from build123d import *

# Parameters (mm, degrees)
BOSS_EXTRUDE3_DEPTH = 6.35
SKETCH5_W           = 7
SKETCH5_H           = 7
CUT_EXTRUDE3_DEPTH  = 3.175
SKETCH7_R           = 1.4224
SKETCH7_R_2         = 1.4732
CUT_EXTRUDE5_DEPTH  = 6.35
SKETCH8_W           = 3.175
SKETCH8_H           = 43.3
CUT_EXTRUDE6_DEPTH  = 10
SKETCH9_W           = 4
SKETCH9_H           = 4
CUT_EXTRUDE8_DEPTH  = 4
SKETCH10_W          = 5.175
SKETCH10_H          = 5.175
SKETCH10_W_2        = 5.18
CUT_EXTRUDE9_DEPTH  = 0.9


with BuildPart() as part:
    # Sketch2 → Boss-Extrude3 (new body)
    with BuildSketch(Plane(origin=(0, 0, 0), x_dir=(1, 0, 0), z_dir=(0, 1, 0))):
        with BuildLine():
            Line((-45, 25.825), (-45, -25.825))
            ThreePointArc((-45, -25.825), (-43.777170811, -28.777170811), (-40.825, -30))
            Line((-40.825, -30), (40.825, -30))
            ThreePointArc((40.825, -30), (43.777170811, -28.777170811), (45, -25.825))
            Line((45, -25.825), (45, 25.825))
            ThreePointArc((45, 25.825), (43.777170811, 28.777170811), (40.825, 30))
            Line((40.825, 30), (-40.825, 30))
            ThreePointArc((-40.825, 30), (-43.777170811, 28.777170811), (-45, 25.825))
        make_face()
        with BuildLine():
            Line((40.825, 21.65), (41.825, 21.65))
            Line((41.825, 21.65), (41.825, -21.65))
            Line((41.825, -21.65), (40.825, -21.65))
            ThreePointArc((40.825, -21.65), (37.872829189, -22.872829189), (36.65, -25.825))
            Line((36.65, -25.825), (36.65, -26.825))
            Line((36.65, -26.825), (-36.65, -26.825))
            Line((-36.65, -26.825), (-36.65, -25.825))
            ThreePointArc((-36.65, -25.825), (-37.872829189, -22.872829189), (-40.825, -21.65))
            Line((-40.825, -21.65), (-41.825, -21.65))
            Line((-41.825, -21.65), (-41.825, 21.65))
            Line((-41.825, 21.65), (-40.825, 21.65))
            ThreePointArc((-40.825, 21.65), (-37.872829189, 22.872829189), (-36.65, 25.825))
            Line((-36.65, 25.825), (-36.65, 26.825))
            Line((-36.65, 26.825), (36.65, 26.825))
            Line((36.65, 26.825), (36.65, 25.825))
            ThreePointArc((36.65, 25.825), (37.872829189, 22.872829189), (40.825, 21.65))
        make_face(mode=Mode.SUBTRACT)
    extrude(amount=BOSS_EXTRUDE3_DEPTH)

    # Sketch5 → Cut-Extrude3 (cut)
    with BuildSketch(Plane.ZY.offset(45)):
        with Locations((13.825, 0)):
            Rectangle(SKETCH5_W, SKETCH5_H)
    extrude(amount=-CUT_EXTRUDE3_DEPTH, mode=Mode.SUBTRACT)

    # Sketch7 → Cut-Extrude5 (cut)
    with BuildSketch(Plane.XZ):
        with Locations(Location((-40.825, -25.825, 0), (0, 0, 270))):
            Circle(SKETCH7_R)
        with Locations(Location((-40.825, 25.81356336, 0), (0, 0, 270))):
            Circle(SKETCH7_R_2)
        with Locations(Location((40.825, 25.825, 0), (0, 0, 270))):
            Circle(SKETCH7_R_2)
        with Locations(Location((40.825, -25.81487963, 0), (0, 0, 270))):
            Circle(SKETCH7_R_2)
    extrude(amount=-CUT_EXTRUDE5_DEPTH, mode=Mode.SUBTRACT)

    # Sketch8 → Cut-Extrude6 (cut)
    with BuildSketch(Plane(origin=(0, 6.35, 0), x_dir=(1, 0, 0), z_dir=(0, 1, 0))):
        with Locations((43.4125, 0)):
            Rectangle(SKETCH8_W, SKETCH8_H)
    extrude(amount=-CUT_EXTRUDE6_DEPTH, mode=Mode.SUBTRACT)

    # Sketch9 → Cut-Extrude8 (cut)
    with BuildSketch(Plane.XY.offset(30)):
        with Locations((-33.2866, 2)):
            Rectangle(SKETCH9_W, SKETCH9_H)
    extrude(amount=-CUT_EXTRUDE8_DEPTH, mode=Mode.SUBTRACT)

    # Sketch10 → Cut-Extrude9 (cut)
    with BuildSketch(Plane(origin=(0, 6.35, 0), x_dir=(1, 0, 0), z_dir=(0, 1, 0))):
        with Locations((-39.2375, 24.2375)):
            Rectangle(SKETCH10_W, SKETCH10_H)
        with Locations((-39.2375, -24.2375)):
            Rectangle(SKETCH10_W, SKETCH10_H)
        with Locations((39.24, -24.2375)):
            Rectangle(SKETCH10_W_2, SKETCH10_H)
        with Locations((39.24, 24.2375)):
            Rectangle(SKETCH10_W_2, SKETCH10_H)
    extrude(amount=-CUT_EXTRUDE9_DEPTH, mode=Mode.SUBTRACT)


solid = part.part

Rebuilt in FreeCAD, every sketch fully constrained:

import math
import FreeCAD as App
import Part
import Sketcher
from FreeCAD import Vector

doc = App.newDocument("Part")
params = doc.addObject("Spreadsheet::Sheet", "Params")
for row, (alias, value) in enumerate([
    ("sketch1_width", "1 mm"),
    ("sketch1_width2", "73.3 mm"),
    ("sketch1_height", "43.3 mm"),
    ("pad1_length", "6.35 mm"),
    ("sketch2_width", "7 mm"),
    ("pocket1_length", "3.175 mm"),
    ("pocket2_length", "6.35 mm"),
    ("sketch4_height", "43.3 mm"),
    ("pocket3_length", "10 mm"),
    ("sketch5_width", "4 mm"),
    ("pocket4_length", "4 mm"),
    ("sketch6_width", "5.18 mm"),
    ("pocket5_length", "0.9 mm"),
], start=1):
    params.set(f"A{row}", alias)
    params.set(f"B{row}", "=" + value)
    params.setAlias(f"B{row}", alias)

body = doc.addObject("PartDesign::Body", "Body")

# Sketch on XZ plane
sketch1 = doc.addObject("Sketcher::SketchObject", "Sketch")
body.addObject(sketch1)
sketch1.AttachmentSupport = (doc.XZ_Plane, [""])
sketch1.MapMode = "FlatFace"
sketch1.addGeometry(Part.LineSegment(Vector(-45, -25.8, 0), Vector(-45, 25.8, 0)), False)
sketch1.addGeometry(Part.ArcOfCircle(Part.Circle(Vector(-40.8, 25.8, 0), Vector(0, 0, 1), 4.2), math.radians(90), math.radians(180)), False)
sketch1.addGeometry(Part.LineSegment(Vector(-40.8, 30, 0), Vector(40.8, 30, 0)), False)
sketch1.addGeometry(Part.ArcOfCircle(Part.Circle(Vector(40.8, 25.8, 0), Vector(0, 0, 1), 4.2), math.radians(0), math.radians(90)), False)
sketch1.addGeometry(Part.LineSegment(Vector(45, 25.8, 0), Vector(45, -25.8, 0)), False)
sketch1.addGeometry(Part.ArcOfCircle(Part.Circle(Vector(40.8, -25.8, 0), Vector(0, 0, 1), 4.2), math.radians(-90), math.radians(0)), False)
sketch1.addGeometry(Part.LineSegment(Vector(40.8, -30, 0), Vector(-40.8, -30, 0)), False)
sketch1.addGeometry(Part.ArcOfCircle(Part.Circle(Vector(-40.8, -25.8, 0), Vector(0, 0, 1), 4.2), math.radians(-180), math.radians(-90)), False)
sketch1.addGeometry(Part.ArcOfCircle(Part.Circle(Vector(40.8, -25.8, 0), Vector(0, 0, 1), 4.2), math.radians(90), math.radians(180)), False)
sketch1.addGeometry(Part.LineSegment(Vector(40.8, -21.6, 0), Vector(41.8, -21.6, 0)), False)
sketch1.addGeometry(Part.LineSegment(Vector(41.8, -21.6, 0), Vector(41.8, 21.6, 0)), False)
sketch1.addGeometry(Part.LineSegment(Vector(41.8, 21.6, 0), Vector(40.8, 21.6, 0)), False)
sketch1.addGeometry(Part.ArcOfCircle(Part.Circle(Vector(40.8, 25.8, 0), Vector(0, 0, 1), 4.2), math.radians(-180), math.radians(-90)), False)
sketch1.addGeometry(Part.LineSegment(Vector(36.6, 25.8, 0), Vector(36.6, 26.8, 0)), False)
sketch1.addGeometry(Part.LineSegment(Vector(36.6, 26.8, 0), Vector(-36.6, 26.8, 0)), False)
sketch1.addGeometry(Part.LineSegment(Vector(-36.6, 26.8, 0), Vector(-36.6, 25.8, 0)), False)
sketch1.addGeometry(Part.ArcOfCircle(Part.Circle(Vector(-40.8, 25.8, 0), Vector(0, 0, 1), 4.2), math.radians(-90), math.radians(0)), False)
sketch1.addGeometry(Part.LineSegment(Vector(-40.8, 21.6, 0), Vector(-41.8, 21.6, 0)), False)
sketch1.addGeometry(Part.LineSegment(Vector(-41.8, 21.6, 0), Vector(-41.8, -21.6, 0)), False)
sketch1.addGeometry(Part.LineSegment(Vector(-41.8, -21.6, 0), Vector(-40.8, -21.6, 0)), False)
sketch1.addGeometry(Part.ArcOfCircle(Part.Circle(Vector(-40.8, -25.8, 0), Vector(0, 0, 1), 4.2), math.radians(0), math.radians(90)), False)
sketch1.addGeometry(Part.LineSegment(Vector(-36.6, -25.8, 0), Vector(-36.6, -26.8, 0)), False)
sketch1.addGeometry(Part.LineSegment(Vector(-36.6, -26.8, 0), Vector(36.6, -26.8, 0)), False)
sketch1.addGeometry(Part.LineSegment(Vector(36.6, -26.8, 0), Vector(36.6, -25.8, 0)), False)
sketch1.addConstraint(Sketcher.Constraint("Tangent", 0, 2, 1, 2))
sketch1.addConstraint(Sketcher.Constraint("Tangent", 1, 1, 2, 1))
sketch1.addConstraint(Sketcher.Constraint("Tangent", 2, 2, 3, 2))
sketch1.addConstraint(Sketcher.Constraint("Tangent", 3, 1, 4, 1))
sketch1.addConstraint(Sketcher.Constraint("Tangent", 4, 2, 5, 2))
sketch1.addConstraint(Sketcher.Constraint("Tangent", 5, 1, 6, 1))
sketch1.addConstraint(Sketcher.Constraint("Tangent", 6, 2, 7, 2))
sketch1.addConstraint(Sketcher.Constraint("Tangent", 7, 1, 0, 1))
sketch1.addConstraint(Sketcher.Constraint("Tangent", 8, 1, 9, 1))
sketch1.addConstraint(Sketcher.Constraint("Coincident", 9, 2, 10, 1))
sketch1.addConstraint(Sketcher.Constraint("Coincident", 10, 2, 11, 1))
sketch1.addConstraint(Sketcher.Constraint("Tangent", 11, 2, 12, 2))
sketch1.addConstraint(Sketcher.Constraint("Tangent", 12, 1, 13, 1))
sketch1.addConstraint(Sketcher.Constraint("Coincident", 13, 2, 14, 1))
sketch1.addConstraint(Sketcher.Constraint("Coincident", 14, 2, 15, 1))
sketch1.addConstraint(Sketcher.Constraint("Tangent", 15, 2, 16, 2))
sketch1.addConstraint(Sketcher.Constraint("Tangent", 16, 1, 17, 1))
sketch1.addConstraint(Sketcher.Constraint("Coincident", 17, 2, 18, 1))
sketch1.addConstraint(Sketcher.Constraint("Coincident", 18, 2, 19, 1))
sketch1.addConstraint(Sketcher.Constraint("Tangent", 19, 2, 20, 2))
sketch1.addConstraint(Sketcher.Constraint("Tangent", 20, 1, 21, 1))
sketch1.addConstraint(Sketcher.Constraint("Coincident", 21, 2, 22, 1))
sketch1.addConstraint(Sketcher.Constraint("Coincident", 22, 2, 23, 1))
sketch1.addConstraint(Sketcher.Constraint("Tangent", 23, 2, 8, 2))
sketch1.addConstraint(Sketcher.Constraint("Vertical", 0))
sketch1.addConstraint(Sketcher.Constraint("Horizontal", 2))
sketch1.addConstraint(Sketcher.Constraint("Vertical", 4))
sketch1.addConstraint(Sketcher.Constraint("Horizontal", 6))
sketch1.addConstraint(Sketcher.Constraint("Horizontal", 9))
sketch1.addConstraint(Sketcher.Constraint("Vertical", 10))
sketch1.addConstraint(Sketcher.Constraint("Horizontal", 11))
sketch1.addConstraint(Sketcher.Constraint("Vertical", 13))
sketch1.addConstraint(Sketcher.Constraint("Horizontal", 14))
sketch1.addConstraint(Sketcher.Constraint("Vertical", 15))
sketch1.addConstraint(Sketcher.Constraint("Horizontal", 17))
sketch1.addConstraint(Sketcher.Constraint("Vertical", 18))
sketch1.addConstraint(Sketcher.Constraint("Horizontal", 19))
sketch1.addConstraint(Sketcher.Constraint("Vertical", 21))
sketch1.addConstraint(Sketcher.Constraint("Horizontal", 22))
sketch1.addConstraint(Sketcher.Constraint("Vertical", 23))
sketch1.addConstraint(Sketcher.Constraint("Coincident", 8, 3, 5, 3))
sketch1.addConstraint(Sketcher.Constraint("Coincident", 12, 3, 3, 3))
sketch1.addConstraint(Sketcher.Constraint("Coincident", 16, 3, 1, 3))
sketch1.addConstraint(Sketcher.Constraint("Coincident", 20, 3, 7, 3))
sketch1.addConstraint(Sketcher.Constraint("Equal", 1, 3))
sketch1.addConstraint(Sketcher.Constraint("Equal", 3, 5))
sketch1.addConstraint(Sketcher.Constraint("Equal", 5, 7))
sketch1.addConstraint(Sketcher.Constraint("Equal", 7, 8))
sketch1.addConstraint(Sketcher.Constraint("Equal", 8, 12))
sketch1.addConstraint(Sketcher.Constraint("Equal", 12, 16))
sketch1.addConstraint(Sketcher.Constraint("Equal", 16, 20))
sketch1.addConstraint(Sketcher.Constraint("Symmetric", 1, 3, 5, 3, -1, 1))
sketch1.addConstraint(Sketcher.Constraint("Equal", 11, 17))
sketch1.addConstraint(Sketcher.Constraint("Equal", 19, 13))
sketch1.addConstraint(Sketcher.Constraint("Equal", 15, 21))
sketch1.addConstraint(Sketcher.Constraint("DistanceX", 9, 1, 9, 2, 1.0))
sketch1.addConstraint(Sketcher.Constraint("DistanceX", 14, 2, 14, 1, 73.3))
sketch1.addConstraint(Sketcher.Constraint("DistanceY", 10, 1, 10, 2, 43.3))
sketch1.addConstraint(Sketcher.Constraint("DistanceX", 0, 2, -1, 1, 45.0))
sketch1.setExpression("Constraints[55]", "Params.sketch1_width")
sketch1.setExpression("Constraints[56]", "Params.sketch1_width2")
sketch1.setExpression("Constraints[57]", "Params.sketch1_height")
pad1 = doc.addObject("PartDesign::Pad", "Pad")
body.addObject(pad1)
pad1.Profile = sketch1
pad1.setExpression("Length", "Params.pad1_length")
pad1.Reversed = True

# Sketch on YZ plane
sketch2 = doc.addObject("Sketcher::SketchObject", "Sketch001")
body.addObject(sketch2)
sketch2.AttachmentSupport = (doc.YZ_Plane, [""])
sketch2.MapMode = "FlatFace"
sketch2.AttachmentOffset = App.Placement(Vector(0, 0, -45), App.Rotation())
sketch2.addGeometry(Part.LineSegment(Vector(4, 10, 0), Vector(-4, 10, 0)), False)
sketch2.addGeometry(Part.LineSegment(Vector(-4, 10, 0), Vector(-4, 17, 0)), False)
sketch2.addGeometry(Part.LineSegment(Vector(-4, 17, 0), Vector(4, 17, 0)), False)
sketch2.addGeometry(Part.LineSegment(Vector(4, 17, 0), Vector(4, 10, 0)), False)
sketch2.addConstraint(Sketcher.Constraint("Coincident", 0, 2, 1, 1))
sketch2.addConstraint(Sketcher.Constraint("Coincident", 1, 2, 2, 1))
sketch2.addConstraint(Sketcher.Constraint("Coincident", 2, 2, 3, 1))
sketch2.addConstraint(Sketcher.Constraint("Coincident", 3, 2, 0, 1))
sketch2.addConstraint(Sketcher.Constraint("Horizontal", 0))
sketch2.addConstraint(Sketcher.Constraint("Vertical", 1))
sketch2.addConstraint(Sketcher.Constraint("Horizontal", 2))
sketch2.addConstraint(Sketcher.Constraint("Vertical", 3))
sketch2.addConstraint(Sketcher.Constraint("Equal", 2, 1))
sketch2.addConstraint(Sketcher.Constraint("DistanceX", 0, 2, 0, 1, 7.0))
sketch2.addConstraint(Sketcher.Constraint("DistanceX", 0, 2, -1, 1, 3.5))
sketch2.addConstraint(Sketcher.Constraint("DistanceY", -1, 1, 0, 2, 10.325))
sketch2.setExpression("Constraints[9]", "Params.sketch2_width")
pocket1 = doc.addObject("PartDesign::Pocket", "Pocket")
body.addObject(pocket1)
pocket1.Profile = sketch2
pocket1.setExpression("Length", "Params.pocket1_length")
pocket1.Reversed = True

# Sketch on XZ plane
sketch3 = doc.addObject("Sketcher::SketchObject", "Sketch002")
body.addObject(sketch3)
sketch3.AttachmentSupport = (doc.XZ_Plane, [""])
sketch3.MapMode = "FlatFace"
sketch3.addGeometry(Part.Circle(Vector(-40.8, -25.8, 0), Vector(0, 0, 1), 1.4), False)
sketch3.addGeometry(Part.Circle(Vector(-40.8, 25.8, 0), Vector(0, 0, 1), 1.5), False)
sketch3.addGeometry(Part.Circle(Vector(40.8, 25.8, 0), Vector(0, 0, 1), 1.5), False)
sketch3.addGeometry(Part.Circle(Vector(40.8, -25.8, 0), Vector(0, 0, 1), 1.5), False)
sketch3.addConstraint(Sketcher.Constraint("Equal", 1, 2))
sketch3.addConstraint(Sketcher.Constraint("Equal", 2, 3))
sketch3.addConstraint(Sketcher.Constraint("Symmetric", 0, 3, 2, 3, -1, 1))
sketch3.addConstraint(Sketcher.Constraint("Vertical", 0, 3, 1, 3))
sketch3.addConstraint(Sketcher.Constraint("Vertical", 2, 3, 3, 3))
sketch3.addConstraint(Sketcher.Constraint("Diameter", 0, 2.8448))
sketch3.addConstraint(Sketcher.Constraint("Diameter", 1, 2.9464))
sketch3.addConstraint(Sketcher.Constraint("DistanceX", 1, 3, 2, 3, 81.65))
sketch3.addConstraint(Sketcher.Constraint("DistanceY", 0, 3, 2, 3, 51.65))
sketch3.addConstraint(Sketcher.Constraint("DistanceY", 3, 3, -1, 1, 25.81488))
sketch3.addConstraint(Sketcher.Constraint("DistanceY", -1, 1, 1, 3, 25.813563))
pocket2 = doc.addObject("PartDesign::Pocket", "Pocket001")
body.addObject(pocket2)
pocket2.Profile = sketch3
pocket2.setExpression("Length", "Params.pocket2_length")

# Sketch on XZ plane
sketch4 = doc.addObject("Sketcher::SketchObject", "Sketch003")
body.addObject(sketch4)
sketch4.AttachmentSupport = (doc.XZ_Plane, [""])
sketch4.MapMode = "FlatFace"
sketch4.AttachmentOffset = App.Placement(Vector(0, 0, -6.35), App.Rotation())
sketch4.addGeometry(Part.LineSegment(Vector(41.8, -21.6, 0), Vector(41.8, 21.6, 0)), False)
sketch4.addGeometry(Part.LineSegment(Vector(41.8, 21.6, 0), Vector(45, 21.6, 0)), False)
sketch4.addGeometry(Part.LineSegment(Vector(45, 21.6, 0), Vector(45, -21.6, 0)), False)
sketch4.addGeometry(Part.LineSegment(Vector(45, -21.6, 0), Vector(41.8, -21.6, 0)), False)
sketch4.addConstraint(Sketcher.Constraint("Coincident", 0, 2, 1, 1))
sketch4.addConstraint(Sketcher.Constraint("Coincident", 1, 2, 2, 1))
sketch4.addConstraint(Sketcher.Constraint("Coincident", 2, 2, 3, 1))
sketch4.addConstraint(Sketcher.Constraint("Coincident", 3, 2, 0, 1))
sketch4.addConstraint(Sketcher.Constraint("Vertical", 0))
sketch4.addConstraint(Sketcher.Constraint("Horizontal", 1))
sketch4.addConstraint(Sketcher.Constraint("Vertical", 2))
sketch4.addConstraint(Sketcher.Constraint("Horizontal", 3))
sketch4.addConstraint(Sketcher.Constraint("DistanceY", 0, 1, 0, 2, 43.3))
sketch4.addConstraint(Sketcher.Constraint("DistanceX", -1, 1, 1, 2, 45.0))
sketch4.addConstraint(Sketcher.Constraint("DistanceX", 1, 1, 1, 2, 3.175))
sketch4.addConstraint(Sketcher.Constraint("DistanceY", -1, 1, 0, 2, 21.65))
sketch4.setExpression("Constraints[8]", "Params.sketch4_height")
pocket3 = doc.addObject("PartDesign::Pocket", "Pocket002")
body.addObject(pocket3)
pocket3.Profile = sketch4
pocket3.setExpression("Length", "Params.pocket3_length")
pocket3.Reversed = True

# Sketch on XY plane
sketch5 = doc.addObject("Sketcher::SketchObject", "Sketch004")
body.addObject(sketch5)
sketch5.AttachmentSupport = (doc.XY_Plane, [""])
sketch5.MapMode = "FlatFace"
sketch5.AttachmentOffset = App.Placement(Vector(0, 0, 30), App.Rotation())
sketch5.addGeometry(Part.LineSegment(Vector(-35.3, 4, 0), Vector(-35.3, 0, 0)), False)
sketch5.addGeometry(Part.LineSegment(Vector(-35.3, 0, 0), Vector(-31.3, 0, 0)), False)
sketch5.addGeometry(Part.LineSegment(Vector(-31.3, 0, 0), Vector(-31.3, 4, 0)), False)
sketch5.addGeometry(Part.LineSegment(Vector(-31.3, 4, 0), Vector(-35.3, 4, 0)), False)
sketch5.addConstraint(Sketcher.Constraint("Coincident", 0, 2, 1, 1))
sketch5.addConstraint(Sketcher.Constraint("Coincident", 1, 2, 2, 1))
sketch5.addConstraint(Sketcher.Constraint("Coincident", 2, 2, 3, 1))
sketch5.addConstraint(Sketcher.Constraint("Coincident", 3, 2, 0, 1))
sketch5.addConstraint(Sketcher.Constraint("Vertical", 0))
sketch5.addConstraint(Sketcher.Constraint("Horizontal", 1))
sketch5.addConstraint(Sketcher.Constraint("Vertical", 2))
sketch5.addConstraint(Sketcher.Constraint("Horizontal", 3))
sketch5.addConstraint(Sketcher.Constraint("PointOnObject", 0, 2, -1))
sketch5.addConstraint(Sketcher.Constraint("Equal", 3, 0))
sketch5.addConstraint(Sketcher.Constraint("DistanceX", 1, 1, 1, 2, 4.0))
sketch5.addConstraint(Sketcher.Constraint("DistanceX", 0, 2, -1, 1, 35.2866))
sketch5.setExpression("Constraints[10]", "Params.sketch5_width")
pocket4 = doc.addObject("PartDesign::Pocket", "Pocket003")
body.addObject(pocket4)
pocket4.Profile = sketch5
pocket4.setExpression("Length", "Params.pocket4_length")

# Sketch on XZ plane
sketch6 = doc.addObject("Sketcher::SketchObject", "Sketch005")
body.addObject(sketch6)
sketch6.AttachmentSupport = (doc.XZ_Plane, [""])
sketch6.MapMode = "FlatFace"
sketch6.AttachmentOffset = App.Placement(Vector(0, 0, -6.35), App.Rotation())
sketch6.addGeometry(Part.LineSegment(Vector(-42, -27, 0), Vector(-42, -22, 0)), False)
sketch6.addGeometry(Part.LineSegment(Vector(-42, -22, 0), Vector(-37, -22, 0)), False)
sketch6.addGeometry(Part.LineSegment(Vector(-37, -22, 0), Vector(-37, -27, 0)), False)
sketch6.addGeometry(Part.LineSegment(Vector(-37, -27, 0), Vector(-42, -27, 0)), False)
sketch6.addGeometry(Part.LineSegment(Vector(-42, 22, 0), Vector(-42, 27, 0)), False)
sketch6.addGeometry(Part.LineSegment(Vector(-42, 27, 0), Vector(-37, 27, 0)), False)
sketch6.addGeometry(Part.LineSegment(Vector(-37, 27, 0), Vector(-37, 22, 0)), False)
sketch6.addGeometry(Part.LineSegment(Vector(-37, 22, 0), Vector(-42, 22, 0)), False)
sketch6.addGeometry(Part.LineSegment(Vector(37, 22, 0), Vector(37, 27, 0)), False)
sketch6.addGeometry(Part.LineSegment(Vector(37, 27, 0), Vector(42, 27, 0)), False)
sketch6.addGeometry(Part.LineSegment(Vector(42, 27, 0), Vector(42, 22, 0)), False)
sketch6.addGeometry(Part.LineSegment(Vector(42, 22, 0), Vector(37, 22, 0)), False)
sketch6.addGeometry(Part.LineSegment(Vector(37, -27, 0), Vector(37, -22, 0)), False)
sketch6.addGeometry(Part.LineSegment(Vector(37, -22, 0), Vector(42, -22, 0)), False)
sketch6.addGeometry(Part.LineSegment(Vector(42, -22, 0), Vector(42, -27, 0)), False)
sketch6.addGeometry(Part.LineSegment(Vector(42, -27, 0), Vector(37, -27, 0)), False)
sketch6.addConstraint(Sketcher.Constraint("Coincident", 0, 2, 1, 1))
sketch6.addConstraint(Sketcher.Constraint("Coincident", 1, 2, 2, 1))
sketch6.addConstraint(Sketcher.Constraint("Coincident", 2, 2, 3, 1))
sketch6.addConstraint(Sketcher.Constraint("Coincident", 3, 2, 0, 1))
sketch6.addConstraint(Sketcher.Constraint("Coincident", 4, 2, 5, 1))
sketch6.addConstraint(Sketcher.Constraint("Coincident", 5, 2, 6, 1))
sketch6.addConstraint(Sketcher.Constraint("Coincident", 6, 2, 7, 1))
sketch6.addConstraint(Sketcher.Constraint("Coincident", 7, 2, 4, 1))
sketch6.addConstraint(Sketcher.Constraint("Coincident", 8, 2, 9, 1))
sketch6.addConstraint(Sketcher.Constraint("Coincident", 9, 2, 10, 1))
sketch6.addConstraint(Sketcher.Constraint("Coincident", 10, 2, 11, 1))
sketch6.addConstraint(Sketcher.Constraint("Coincident", 11, 2, 8, 1))
sketch6.addConstraint(Sketcher.Constraint("Coincident", 12, 2, 13, 1))
sketch6.addConstraint(Sketcher.Constraint("Coincident", 13, 2, 14, 1))
sketch6.addConstraint(Sketcher.Constraint("Coincident", 14, 2, 15, 1))
sketch6.addConstraint(Sketcher.Constraint("Coincident", 15, 2, 12, 1))
sketch6.addConstraint(Sketcher.Constraint("Vertical", 0))
sketch6.addConstraint(Sketcher.Constraint("Horizontal", 1))
sketch6.addConstraint(Sketcher.Constraint("Vertical", 2))
sketch6.addConstraint(Sketcher.Constraint("Horizontal", 3))
sketch6.addConstraint(Sketcher.Constraint("Vertical", 4))
sketch6.addConstraint(Sketcher.Constraint("Horizontal", 5))
sketch6.addConstraint(Sketcher.Constraint("Vertical", 6))
sketch6.addConstraint(Sketcher.Constraint("Horizontal", 7))
sketch6.addConstraint(Sketcher.Constraint("Vertical", 8))
sketch6.addConstraint(Sketcher.Constraint("Horizontal", 9))
sketch6.addConstraint(Sketcher.Constraint("Vertical", 10))
sketch6.addConstraint(Sketcher.Constraint("Horizontal", 11))
sketch6.addConstraint(Sketcher.Constraint("Vertical", 12))
sketch6.addConstraint(Sketcher.Constraint("Horizontal", 13))
sketch6.addConstraint(Sketcher.Constraint("Vertical", 14))
sketch6.addConstraint(Sketcher.Constraint("Horizontal", 15))
sketch6.addConstraint(Sketcher.Constraint("Symmetric", 2, 2, 8, 2, -1, 1))
sketch6.addConstraint(Sketcher.Constraint("Symmetric", 6, 2, 12, 2, -1, 1))
sketch6.addConstraint(Sketcher.Constraint("Symmetric", 5, 2, 8, 2, -2))
sketch6.addConstraint(Sketcher.Constraint("Symmetric", 0, 2, 7, 2, -1))
sketch6.addConstraint(Sketcher.Constraint("Symmetric", 10, 2, 13, 2, -1))
sketch6.addConstraint(Sketcher.Constraint("Horizontal", 3, 2, 14, 2))
sketch6.addConstraint(Sketcher.Constraint("Equal", 7, 0))
sketch6.addConstraint(Sketcher.Constraint("DistanceX", 9, 1, 9, 2, 5.18))
sketch6.addConstraint(Sketcher.Constraint("DistanceY", 1, 2, 6, 2, 43.3))
sketch6.addConstraint(Sketcher.Constraint("DistanceX", 5, 2, 8, 2, 73.3))
sketch6.addConstraint(Sketcher.Constraint("DistanceX", 1, 1, 1, 2, 5.175))
sketch6.setExpression("Constraints[39]", "Params.sketch6_width")
pocket5 = doc.addObject("PartDesign::Pocket", "Pocket004")
body.addObject(pocket5)
pocket5.Profile = sketch6
pocket5.setExpression("Length", "Params.pocket5_length")
pocket5.Reversed = True

doc.recompute()
